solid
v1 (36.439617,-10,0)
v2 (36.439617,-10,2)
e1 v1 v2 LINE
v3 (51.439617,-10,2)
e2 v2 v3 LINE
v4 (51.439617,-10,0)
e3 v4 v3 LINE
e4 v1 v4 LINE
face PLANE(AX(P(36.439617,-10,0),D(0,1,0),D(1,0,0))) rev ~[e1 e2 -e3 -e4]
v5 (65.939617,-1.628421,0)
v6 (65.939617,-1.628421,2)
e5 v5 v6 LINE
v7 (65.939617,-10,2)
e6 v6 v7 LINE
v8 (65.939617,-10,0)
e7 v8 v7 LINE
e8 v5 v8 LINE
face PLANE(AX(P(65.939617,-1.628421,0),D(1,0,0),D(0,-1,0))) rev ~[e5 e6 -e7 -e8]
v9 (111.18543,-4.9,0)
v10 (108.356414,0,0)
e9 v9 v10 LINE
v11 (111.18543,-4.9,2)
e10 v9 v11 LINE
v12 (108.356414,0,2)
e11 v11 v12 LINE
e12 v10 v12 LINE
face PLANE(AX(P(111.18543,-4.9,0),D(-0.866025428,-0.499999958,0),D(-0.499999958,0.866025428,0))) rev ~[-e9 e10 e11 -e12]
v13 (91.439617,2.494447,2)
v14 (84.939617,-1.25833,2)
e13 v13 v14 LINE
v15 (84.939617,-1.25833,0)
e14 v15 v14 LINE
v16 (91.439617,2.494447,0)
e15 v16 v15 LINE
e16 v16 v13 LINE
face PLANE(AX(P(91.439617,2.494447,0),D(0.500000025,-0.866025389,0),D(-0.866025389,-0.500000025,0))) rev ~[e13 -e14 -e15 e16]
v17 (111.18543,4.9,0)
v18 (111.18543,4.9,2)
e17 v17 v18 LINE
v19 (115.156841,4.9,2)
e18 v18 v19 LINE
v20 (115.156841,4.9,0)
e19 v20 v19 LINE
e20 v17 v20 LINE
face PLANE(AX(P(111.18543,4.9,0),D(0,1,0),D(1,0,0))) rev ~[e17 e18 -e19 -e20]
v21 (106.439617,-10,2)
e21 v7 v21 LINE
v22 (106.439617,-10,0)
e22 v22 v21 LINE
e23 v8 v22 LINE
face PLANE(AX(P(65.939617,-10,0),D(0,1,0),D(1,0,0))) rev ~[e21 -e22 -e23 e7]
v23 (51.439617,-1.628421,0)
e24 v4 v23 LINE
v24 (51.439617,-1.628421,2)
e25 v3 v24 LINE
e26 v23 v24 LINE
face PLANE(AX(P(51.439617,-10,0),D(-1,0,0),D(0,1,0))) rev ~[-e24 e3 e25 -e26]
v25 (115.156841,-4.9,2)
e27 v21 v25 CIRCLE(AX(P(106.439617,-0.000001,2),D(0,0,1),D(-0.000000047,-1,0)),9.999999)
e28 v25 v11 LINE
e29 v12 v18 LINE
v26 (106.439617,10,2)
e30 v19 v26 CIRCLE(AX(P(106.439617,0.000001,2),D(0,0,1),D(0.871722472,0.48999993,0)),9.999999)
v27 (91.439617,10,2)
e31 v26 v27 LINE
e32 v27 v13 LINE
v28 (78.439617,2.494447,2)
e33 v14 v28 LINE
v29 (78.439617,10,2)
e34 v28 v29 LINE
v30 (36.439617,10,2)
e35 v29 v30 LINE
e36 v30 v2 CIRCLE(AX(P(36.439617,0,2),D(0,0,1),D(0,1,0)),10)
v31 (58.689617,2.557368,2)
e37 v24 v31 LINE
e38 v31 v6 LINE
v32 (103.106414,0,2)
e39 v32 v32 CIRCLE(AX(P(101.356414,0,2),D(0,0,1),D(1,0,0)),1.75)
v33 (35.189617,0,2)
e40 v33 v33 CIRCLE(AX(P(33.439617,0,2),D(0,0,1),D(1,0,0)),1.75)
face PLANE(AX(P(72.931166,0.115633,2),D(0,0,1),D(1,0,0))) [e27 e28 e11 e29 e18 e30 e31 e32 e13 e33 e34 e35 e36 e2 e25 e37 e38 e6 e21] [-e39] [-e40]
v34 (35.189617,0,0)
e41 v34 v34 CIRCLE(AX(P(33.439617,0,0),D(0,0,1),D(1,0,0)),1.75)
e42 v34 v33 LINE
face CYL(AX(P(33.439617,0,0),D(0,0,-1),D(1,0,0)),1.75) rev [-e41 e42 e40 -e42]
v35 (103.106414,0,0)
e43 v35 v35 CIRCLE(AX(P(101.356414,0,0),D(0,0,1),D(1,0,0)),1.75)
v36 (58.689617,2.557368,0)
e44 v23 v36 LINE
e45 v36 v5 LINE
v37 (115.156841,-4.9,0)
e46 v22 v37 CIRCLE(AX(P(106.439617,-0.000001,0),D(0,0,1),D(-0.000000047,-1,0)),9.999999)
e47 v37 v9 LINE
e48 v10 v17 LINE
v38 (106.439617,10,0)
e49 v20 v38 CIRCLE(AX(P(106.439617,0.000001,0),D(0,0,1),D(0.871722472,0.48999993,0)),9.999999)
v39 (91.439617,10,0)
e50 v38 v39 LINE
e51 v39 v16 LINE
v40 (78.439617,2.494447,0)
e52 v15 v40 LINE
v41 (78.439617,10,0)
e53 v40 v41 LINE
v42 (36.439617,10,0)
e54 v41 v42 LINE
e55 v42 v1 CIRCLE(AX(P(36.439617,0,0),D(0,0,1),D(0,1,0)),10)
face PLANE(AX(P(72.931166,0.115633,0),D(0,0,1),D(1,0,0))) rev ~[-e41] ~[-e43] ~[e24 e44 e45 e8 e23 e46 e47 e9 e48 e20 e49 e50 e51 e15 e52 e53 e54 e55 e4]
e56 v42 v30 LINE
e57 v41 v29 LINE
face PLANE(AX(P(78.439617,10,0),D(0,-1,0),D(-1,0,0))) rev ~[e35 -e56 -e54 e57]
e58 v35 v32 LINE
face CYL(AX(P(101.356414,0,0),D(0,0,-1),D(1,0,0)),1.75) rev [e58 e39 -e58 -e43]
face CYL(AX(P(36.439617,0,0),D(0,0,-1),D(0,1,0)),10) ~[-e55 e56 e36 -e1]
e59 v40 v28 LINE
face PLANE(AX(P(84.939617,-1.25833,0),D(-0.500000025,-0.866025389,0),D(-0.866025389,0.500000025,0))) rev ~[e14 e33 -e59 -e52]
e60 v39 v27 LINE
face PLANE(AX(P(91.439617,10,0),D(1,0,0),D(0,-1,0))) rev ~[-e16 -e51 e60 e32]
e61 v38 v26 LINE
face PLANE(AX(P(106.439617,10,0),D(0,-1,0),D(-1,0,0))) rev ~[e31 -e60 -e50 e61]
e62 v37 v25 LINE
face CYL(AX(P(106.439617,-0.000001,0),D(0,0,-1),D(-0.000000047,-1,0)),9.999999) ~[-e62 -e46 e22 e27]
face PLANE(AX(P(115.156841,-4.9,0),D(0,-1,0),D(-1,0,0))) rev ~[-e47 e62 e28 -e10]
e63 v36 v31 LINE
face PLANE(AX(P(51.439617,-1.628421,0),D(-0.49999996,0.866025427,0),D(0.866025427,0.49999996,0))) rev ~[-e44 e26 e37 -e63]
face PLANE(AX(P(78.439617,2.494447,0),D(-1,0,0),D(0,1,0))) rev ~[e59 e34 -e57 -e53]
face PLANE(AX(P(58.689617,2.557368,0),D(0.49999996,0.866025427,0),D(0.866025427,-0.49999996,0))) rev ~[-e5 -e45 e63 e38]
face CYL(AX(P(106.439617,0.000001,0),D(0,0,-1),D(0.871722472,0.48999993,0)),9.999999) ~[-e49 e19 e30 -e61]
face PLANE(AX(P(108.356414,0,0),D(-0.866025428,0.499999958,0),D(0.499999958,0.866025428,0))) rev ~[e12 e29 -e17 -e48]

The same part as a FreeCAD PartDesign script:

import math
import FreeCAD as App
import Part
import Sketcher
from FreeCAD import Vector
Q = App.Units.Quantity

doc = App.newDocument("Part")
params = doc.addObject("Spreadsheet::Sheet", "Params")
for row, (alias, value) in enumerate([
    ("sketch1_radius", "10 mm"),
    ("sketch1_diameter", "3.5 mm"),
    ("sketch1_width", "42 mm"),
    ("sketch1_width2", "15 mm"),
    ("sketch1_width3", "40.5 mm"),
    ("pad1_length", "2 mm"),
], start=1):
    params.set(f"A{row}", alias)
    params.set(f"B{row}", "=" + value)
    params.setAlias(f"B{row}", alias)

body = doc.addObject("PartDesign::Body", "Body")

# Sketch on XY plane
sketch1 = body.newObject("Sketcher::SketchObject", "Sketch")
sketch1.AttachmentSupport = (doc.getObject("XY_Plane"), [""])
sketch1.MapMode = "FlatFace"
sketch1.addGeometry([
    Part.LineSegment(Vector(78.4, 10, 0), Vector(36.4, 10, 0)),  # 0
    Part.ArcOfCircle(Part.Circle(Vector(36.4, 0, 0), Vector(0, 0, 1), 10), math.radians(90), math.radians(270)),  # 1
    Part.LineSegment(Vector(36.4, -10, 0), Vector(51.4, -10, 0)),  # 2
    Part.LineSegment(Vector(51.4, -10, 0), Vector(51.4, -1.6, 0)),  # 3
    Part.LineSegment(Vector(51.4, -1.6, 0), Vector(58.7, 2.6, 0)),  # 4
    Part.LineSegment(Vector(58.7, 2.6, 0), Vector(65.9, -1.6, 0)),  # 5
    Part.LineSegment(Vector(65.9, -1.6, 0), Vector(65.9, -10, 0)),  # 6
    Part.LineSegment(Vector(65.9, -10, 0), Vector(106.4, -10, 0)),  # 7
    Part.ArcOfCircle(Part.Circle(Vector(106.4, 0, 0), Vector(0, 0, 1), 10), math.radians(-90), math.radians(-29)),  # 8
    Part.LineSegment(Vector(115.2, -4.9, 0), Vector(111.2, -4.9, 0)),  # 9
    Part.LineSegment(Vector(111.2, -4.9, 0), Vector(108.4, 0, 0)),  # 10
    Part.LineSegment(Vector(108.4, 0, 0), Vector(111.2, 4.9, 0)),  # 11
    Part.LineSegment(Vector(111.2, 4.9, 0), Vector(115.2, 4.9, 0)),  # 12
    Part.ArcOfCircle(Part.Circle(Vector(106.4, 0, 0), Vector(0, 0, 1), 10), math.radians(29), math.radians(90)),  # 13
    Part.LineSegment(Vector(106.4, 10, 0), Vector(91.4, 10, 0)),  # 14
    Part.LineSegment(Vector(91.4, 10, 0), Vector(91.4, 2.5, 0)),  # 15
    Part.LineSegment(Vector(91.4, 2.5, 0), Vector(84.9, -1.3, 0)),  # 16
    Part.LineSegment(Vector(84.9, -1.3, 0), Vector(78.4, 2.5, 0)),  # 17
    Part.LineSegment(Vector(78.4, 2.5, 0), Vector(78.4, 10, 0)),  # 18
    Part.Circle(Vector(33.4, 0, 0), Vector(0, 0, 1), 1.8),  # 19
    Part.Circle(Vector(101.4, 0, 0), Vector(0, 0, 1), 1.8),  # 20
], False)
sketch1.addConstraint([
    Sketcher.Constraint("Tangent", 0, 2, 1, 1),
    Sketcher.Constraint("Tangent", 1, 2, 2, 1),
    Sketcher.Constraint("Coincident", 2, 2, 3, 1),
    Sketcher.Constraint("Coincident", 3, 2, 4, 1),
    Sketcher.Constraint("Coincident", 4, 2, 5, 1),
    Sketcher.Constraint("Coincident", 5, 2, 6, 1),
    Sketcher.Constraint("Coincident", 6, 2, 7, 1),
    Sketcher.Constraint("Tangent", 7, 2, 8, 1),
    Sketcher.Constraint("Coincident", 8, 2, 9, 1),
    Sketcher.Constraint("Coincident", 9, 2, 10, 1),
    Sketcher.Constraint("Coincident", 10, 2, 11, 1),
    Sketcher.Constraint("Coincident", 11, 2, 12, 1),
    Sketcher.Constraint("Coincident", 12, 2, 13, 1),
    Sketcher.Constraint("Tangent", 13, 2, 14, 1),
    Sketcher.Constraint("Coincident", 14, 2, 15, 1),
    Sketcher.Constraint("Coincident", 15, 2, 16, 1),
    Sketcher.Constraint("Coincident", 16, 2, 17, 1),
    Sketcher.Constraint("Coincident", 17, 2, 18, 1),
    Sketcher.Constraint("Coincident", 18, 2, 0, 1),
    Sketcher.Constraint("Horizontal", 0),
    Sketcher.Constraint("Horizontal", 2),
    Sketcher.Constraint("Vertical", 3),
    Sketcher.Constraint("Vertical", 6),
    Sketcher.Constraint("Horizontal", 7),
    Sketcher.Constraint("Horizontal", 9),
    Sketcher.Constraint("Horizontal", 12),
    Sketcher.Constraint("Horizontal", 14),
    Sketcher.Constraint("Vertical", 15),
    Sketcher.Constraint("Vertical", 18),
    Sketcher.Constraint("Coincident", 13, 3, 8, 3),
    Sketcher.Constraint("Equal", 1, 8),
    Sketcher.Constraint("Equal", 8, 13),
    Sketcher.Constraint("Equal", 19, 20),
    Sketcher.Constraint("Symmetric", 9, 2, 11, 2, -1),
    Sketcher.Constraint("PointOnObject", 1, 3, -1),
    Sketcher.Constraint("PointOnObject", 8, 3, -1),
    Sketcher.Constraint("PointOnObject", 19, 3, -1),
    Sketcher.Constraint("PointOnObject", 20, 3, -1),
    Sketcher.Constraint("PointOnObject", 10, 2, -1),
    Sketcher.Constraint("Perpendicular", 4, 10),
    Sketcher.Constraint("Perpendicular", 5, 11),
    Sketcher.Constraint("Perpendicular", 10, 16),
    Sketcher.Constraint("Perpendicular", 11, 17),
    Sketcher.Constraint("Horizontal", 3, 2, 5, 2),
    Sketcher.Constraint("Horizontal", 15, 2, 17, 2),
    Sketcher.Constraint("Equal", 2, 14),
    Sketcher.Constraint("Radius", 1, 10.0),
    Sketcher.Constraint("Diameter", 19, 3.5),
    Sketcher.Constraint("DistanceX", 0, 2, 0, 1, 42.0),
    Sketcher.Constraint("DistanceX", 2, 1, 2, 2, 15.0),
    Sketcher.Constraint("Angle", 4, Q("29.999997 deg")),
    Sketcher.Constraint("DistanceX", 7, 1, 7, 2, 40.5),
    Sketcher.Constraint("DistanceX", 1, 3, 8, 3, 70.0),
    Sketcher.Constraint("DistanceX", 19, 3, 1, 3, 3.0),
    Sketcher.Constraint("DistanceX", 20, 3, 10, 2, 7.0),
    Sketcher.Constraint("DistanceY", 8, 2, -1, 1, 4.9),
    Sketcher.Constraint("DistanceX", 9, 2, 9, 1, 3.971411),
    Sketcher.Constraint("DistanceY", 3, 1, 3, 2, 8.371579),
    Sketcher.Constraint("DistanceY", 15, 2, 15, 1, 7.505553),
    Sketcher.Constraint("DistanceX", -1, 1, 8, 2, 115.156841),
])
sketch1.setExpression("Constraints[46]", "Params.sketch1_radius")
sketch1.setExpression("Constraints[47]", "Params.sketch1_diameter")
sketch1.setExpression("Constraints[48]", "Params.sketch1_width")
sketch1.setExpression("Constraints[49]", "Params.sketch1_width2")
sketch1.setExpression("Constraints[51]", "Params.sketch1_width3")
pad1 = body.newObject("PartDesign::Pad", "Pad")
pad1.Profile = sketch1
pad1.setExpression("Length", "Params.pad1_length")

doc.recompute()
